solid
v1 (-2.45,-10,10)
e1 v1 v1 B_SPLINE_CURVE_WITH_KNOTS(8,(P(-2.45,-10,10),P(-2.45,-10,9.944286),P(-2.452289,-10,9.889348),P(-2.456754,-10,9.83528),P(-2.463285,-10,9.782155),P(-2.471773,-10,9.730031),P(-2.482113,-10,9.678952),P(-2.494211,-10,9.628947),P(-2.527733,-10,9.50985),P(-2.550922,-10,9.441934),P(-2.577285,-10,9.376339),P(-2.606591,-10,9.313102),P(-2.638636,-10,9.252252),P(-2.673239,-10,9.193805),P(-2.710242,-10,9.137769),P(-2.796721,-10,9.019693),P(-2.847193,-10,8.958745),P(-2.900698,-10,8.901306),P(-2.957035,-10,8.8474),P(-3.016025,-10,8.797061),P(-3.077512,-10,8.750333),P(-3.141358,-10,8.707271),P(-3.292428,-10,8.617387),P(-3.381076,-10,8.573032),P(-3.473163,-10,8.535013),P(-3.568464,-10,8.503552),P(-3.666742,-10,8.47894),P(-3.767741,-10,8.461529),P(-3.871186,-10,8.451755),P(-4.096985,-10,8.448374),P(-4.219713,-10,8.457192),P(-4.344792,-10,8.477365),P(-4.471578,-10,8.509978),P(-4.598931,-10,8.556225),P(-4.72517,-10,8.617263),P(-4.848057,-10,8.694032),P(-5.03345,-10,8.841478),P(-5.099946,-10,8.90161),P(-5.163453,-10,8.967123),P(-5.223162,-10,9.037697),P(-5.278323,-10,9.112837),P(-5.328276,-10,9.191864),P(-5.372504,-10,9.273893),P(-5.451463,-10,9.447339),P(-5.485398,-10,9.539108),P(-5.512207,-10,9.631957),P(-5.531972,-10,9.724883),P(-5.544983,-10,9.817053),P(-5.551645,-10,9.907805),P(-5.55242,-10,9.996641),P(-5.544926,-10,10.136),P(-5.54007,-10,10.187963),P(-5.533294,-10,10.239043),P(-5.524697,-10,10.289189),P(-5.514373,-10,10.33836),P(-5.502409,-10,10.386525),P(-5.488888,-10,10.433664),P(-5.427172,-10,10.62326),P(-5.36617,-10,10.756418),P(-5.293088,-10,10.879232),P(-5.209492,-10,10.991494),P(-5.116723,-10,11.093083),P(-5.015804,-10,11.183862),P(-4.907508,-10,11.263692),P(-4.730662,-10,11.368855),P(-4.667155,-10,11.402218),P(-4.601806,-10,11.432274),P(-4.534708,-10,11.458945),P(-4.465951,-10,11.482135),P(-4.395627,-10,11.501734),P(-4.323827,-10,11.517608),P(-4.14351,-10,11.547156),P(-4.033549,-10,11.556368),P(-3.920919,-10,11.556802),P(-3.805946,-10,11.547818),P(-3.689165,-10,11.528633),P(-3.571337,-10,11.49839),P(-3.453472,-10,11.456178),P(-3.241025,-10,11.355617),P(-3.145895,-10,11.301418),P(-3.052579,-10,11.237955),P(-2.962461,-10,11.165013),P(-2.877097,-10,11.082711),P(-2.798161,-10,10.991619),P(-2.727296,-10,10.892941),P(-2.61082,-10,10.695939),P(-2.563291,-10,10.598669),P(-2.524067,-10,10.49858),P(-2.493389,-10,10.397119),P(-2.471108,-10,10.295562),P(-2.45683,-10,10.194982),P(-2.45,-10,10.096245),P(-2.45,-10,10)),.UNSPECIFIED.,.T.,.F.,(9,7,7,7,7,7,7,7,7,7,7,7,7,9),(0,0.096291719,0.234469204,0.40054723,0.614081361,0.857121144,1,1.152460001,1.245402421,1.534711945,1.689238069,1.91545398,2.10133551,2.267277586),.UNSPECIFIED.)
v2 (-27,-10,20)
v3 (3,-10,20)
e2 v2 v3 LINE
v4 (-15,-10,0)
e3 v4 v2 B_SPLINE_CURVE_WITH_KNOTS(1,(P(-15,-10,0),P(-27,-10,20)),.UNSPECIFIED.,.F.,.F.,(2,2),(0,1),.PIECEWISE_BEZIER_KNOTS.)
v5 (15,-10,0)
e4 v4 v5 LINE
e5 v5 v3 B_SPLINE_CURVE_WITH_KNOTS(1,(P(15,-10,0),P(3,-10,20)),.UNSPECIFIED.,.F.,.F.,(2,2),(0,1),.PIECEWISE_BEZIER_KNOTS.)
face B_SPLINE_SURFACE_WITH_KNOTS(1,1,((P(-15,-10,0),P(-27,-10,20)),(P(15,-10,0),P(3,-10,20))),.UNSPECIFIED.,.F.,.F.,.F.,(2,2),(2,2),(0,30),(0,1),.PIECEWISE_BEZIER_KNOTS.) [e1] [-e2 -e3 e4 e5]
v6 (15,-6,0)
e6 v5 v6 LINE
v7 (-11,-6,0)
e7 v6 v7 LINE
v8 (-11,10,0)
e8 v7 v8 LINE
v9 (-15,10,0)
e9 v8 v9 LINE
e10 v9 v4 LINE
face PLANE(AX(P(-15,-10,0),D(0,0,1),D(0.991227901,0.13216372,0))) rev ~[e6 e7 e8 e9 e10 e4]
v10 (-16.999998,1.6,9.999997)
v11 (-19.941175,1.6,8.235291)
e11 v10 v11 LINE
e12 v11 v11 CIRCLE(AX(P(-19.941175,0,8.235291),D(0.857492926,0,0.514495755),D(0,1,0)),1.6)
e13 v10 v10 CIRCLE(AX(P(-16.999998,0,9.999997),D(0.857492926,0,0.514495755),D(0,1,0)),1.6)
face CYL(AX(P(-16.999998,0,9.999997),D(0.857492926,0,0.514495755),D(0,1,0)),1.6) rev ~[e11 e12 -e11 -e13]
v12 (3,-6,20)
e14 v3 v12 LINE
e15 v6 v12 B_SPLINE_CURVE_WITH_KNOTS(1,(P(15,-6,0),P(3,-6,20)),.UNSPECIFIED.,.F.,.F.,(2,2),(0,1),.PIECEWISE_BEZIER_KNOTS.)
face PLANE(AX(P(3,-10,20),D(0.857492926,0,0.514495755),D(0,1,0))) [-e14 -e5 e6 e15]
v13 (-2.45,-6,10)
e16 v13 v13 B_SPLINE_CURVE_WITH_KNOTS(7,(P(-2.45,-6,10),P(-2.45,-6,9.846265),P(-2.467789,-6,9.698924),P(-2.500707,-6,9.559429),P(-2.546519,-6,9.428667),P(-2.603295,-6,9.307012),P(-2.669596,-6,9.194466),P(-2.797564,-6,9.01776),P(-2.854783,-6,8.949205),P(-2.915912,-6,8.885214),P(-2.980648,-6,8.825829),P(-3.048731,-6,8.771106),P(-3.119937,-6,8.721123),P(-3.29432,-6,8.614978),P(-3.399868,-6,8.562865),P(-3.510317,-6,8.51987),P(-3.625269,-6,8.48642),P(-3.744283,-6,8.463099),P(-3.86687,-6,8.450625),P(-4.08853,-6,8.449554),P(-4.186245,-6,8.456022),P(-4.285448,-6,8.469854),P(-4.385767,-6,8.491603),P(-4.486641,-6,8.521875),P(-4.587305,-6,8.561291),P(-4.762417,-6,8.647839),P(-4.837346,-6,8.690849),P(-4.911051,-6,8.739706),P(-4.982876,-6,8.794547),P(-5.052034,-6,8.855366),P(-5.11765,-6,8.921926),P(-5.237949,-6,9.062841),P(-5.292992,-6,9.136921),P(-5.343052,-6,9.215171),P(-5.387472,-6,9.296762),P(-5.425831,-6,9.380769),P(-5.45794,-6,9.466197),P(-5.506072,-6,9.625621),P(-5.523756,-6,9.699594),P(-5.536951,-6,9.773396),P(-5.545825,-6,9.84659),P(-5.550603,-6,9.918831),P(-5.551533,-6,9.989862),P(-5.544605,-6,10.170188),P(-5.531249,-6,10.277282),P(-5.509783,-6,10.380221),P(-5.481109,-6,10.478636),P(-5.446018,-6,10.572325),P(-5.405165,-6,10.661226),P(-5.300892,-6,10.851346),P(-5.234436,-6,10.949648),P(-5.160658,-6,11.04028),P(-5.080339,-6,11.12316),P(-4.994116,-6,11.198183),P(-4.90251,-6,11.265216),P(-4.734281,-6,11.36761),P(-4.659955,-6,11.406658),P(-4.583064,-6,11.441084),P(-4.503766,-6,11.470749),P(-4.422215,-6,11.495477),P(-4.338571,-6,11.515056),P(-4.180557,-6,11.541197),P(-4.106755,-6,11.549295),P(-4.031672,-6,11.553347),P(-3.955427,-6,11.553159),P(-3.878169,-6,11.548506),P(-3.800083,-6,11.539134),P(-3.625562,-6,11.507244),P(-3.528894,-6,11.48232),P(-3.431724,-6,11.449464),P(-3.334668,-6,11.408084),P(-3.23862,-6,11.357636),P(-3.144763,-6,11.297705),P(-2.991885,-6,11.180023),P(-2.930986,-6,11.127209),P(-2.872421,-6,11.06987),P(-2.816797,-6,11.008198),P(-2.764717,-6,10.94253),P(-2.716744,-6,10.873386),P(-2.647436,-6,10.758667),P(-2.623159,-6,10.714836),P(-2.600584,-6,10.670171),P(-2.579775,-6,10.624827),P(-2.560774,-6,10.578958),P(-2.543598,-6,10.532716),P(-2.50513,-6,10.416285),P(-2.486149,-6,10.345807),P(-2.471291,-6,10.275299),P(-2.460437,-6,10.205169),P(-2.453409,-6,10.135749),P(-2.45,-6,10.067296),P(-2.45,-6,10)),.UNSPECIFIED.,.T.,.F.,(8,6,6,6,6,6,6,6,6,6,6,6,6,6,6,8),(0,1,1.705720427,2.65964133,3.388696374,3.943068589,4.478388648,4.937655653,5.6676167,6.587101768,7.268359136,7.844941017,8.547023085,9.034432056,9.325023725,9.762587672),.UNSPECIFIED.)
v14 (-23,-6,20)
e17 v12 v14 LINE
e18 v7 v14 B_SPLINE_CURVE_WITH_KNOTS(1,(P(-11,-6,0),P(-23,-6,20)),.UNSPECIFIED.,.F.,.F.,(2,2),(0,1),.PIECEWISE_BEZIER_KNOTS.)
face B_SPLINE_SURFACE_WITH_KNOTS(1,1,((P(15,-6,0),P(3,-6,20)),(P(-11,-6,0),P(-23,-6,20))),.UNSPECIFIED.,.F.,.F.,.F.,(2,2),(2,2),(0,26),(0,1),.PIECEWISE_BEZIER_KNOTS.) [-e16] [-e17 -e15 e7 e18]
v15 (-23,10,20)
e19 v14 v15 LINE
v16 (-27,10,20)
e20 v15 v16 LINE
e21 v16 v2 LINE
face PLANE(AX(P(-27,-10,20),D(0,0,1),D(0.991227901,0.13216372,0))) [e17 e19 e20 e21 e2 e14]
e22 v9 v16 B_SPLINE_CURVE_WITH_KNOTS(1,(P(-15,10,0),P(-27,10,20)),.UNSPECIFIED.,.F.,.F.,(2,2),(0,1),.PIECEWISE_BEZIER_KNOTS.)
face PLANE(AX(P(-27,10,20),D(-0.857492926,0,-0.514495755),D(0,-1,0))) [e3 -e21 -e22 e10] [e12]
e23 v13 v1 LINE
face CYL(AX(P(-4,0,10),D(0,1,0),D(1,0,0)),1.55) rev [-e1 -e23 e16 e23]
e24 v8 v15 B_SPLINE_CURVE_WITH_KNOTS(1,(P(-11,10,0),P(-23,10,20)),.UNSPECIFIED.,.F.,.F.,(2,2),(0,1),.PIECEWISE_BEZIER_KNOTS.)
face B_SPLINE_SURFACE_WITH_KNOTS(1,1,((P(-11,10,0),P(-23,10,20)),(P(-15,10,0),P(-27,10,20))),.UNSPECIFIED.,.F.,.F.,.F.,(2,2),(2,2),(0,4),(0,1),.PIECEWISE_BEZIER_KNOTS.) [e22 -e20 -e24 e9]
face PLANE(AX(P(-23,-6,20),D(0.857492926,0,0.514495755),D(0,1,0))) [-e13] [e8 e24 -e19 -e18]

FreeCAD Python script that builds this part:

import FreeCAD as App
import Part
import Sketcher

V = App.Vector
Q = App.Units.Quantity

doc = App.newDocument("Part")
body = doc.addObject("PartDesign::Body", "Body")

sketch1 = body.newObject("Sketcher::SketchObject", "Sketch")
sketch1.AttachmentSupport = (doc.getObject("XY_Plane"), [""])
sketch1.MapMode = "FlatFace"
sketch1.addGeometry(Part.LineSegment(V(-15, -10, 0), V(15, -10, 0)), False)
sketch1.addGeometry(Part.LineSegment(V(15, -10, 0), V(15, -6, 0)), False)
sketch1.addGeometry(Part.LineSegment(V(15, -6, 0), V(-11, -6, 0)), False)
sketch1.addGeometry(Part.LineSegment(V(-11, -6, 0), V(-11, 10, 0)), False)
sketch1.addGeometry(Part.LineSegment(V(-11, 10, 0), V(-15, 10, 0)), False)
sketch1.addGeometry(Part.LineSegment(V(-15, 10, 0), V(-15, -10, 0)), False)
sketch1.addConstraint(Sketcher.Constraint("Coincident", 0, 2, 1, 1))
sketch1.addConstraint(Sketcher.Constraint("Coincident", 1, 2, 2, 1))
sketch1.addConstraint(Sketcher.Constraint("Coincident", 2, 2, 3, 1))
sketch1.addConstraint(Sketcher.Constraint("Coincident", 3, 2, 4, 1))
sketch1.addConstraint(Sketcher.Constraint("Coincident", 4, 2, 5, 1))
sketch1.addConstraint(Sketcher.Constraint("Coincident", 5, 2, 0, 1))
sketch1.addConstraint(Sketcher.Constraint("Horizontal", 0))
sketch1.addConstraint(Sketcher.Constraint("Vertical", 1))
sketch1.addConstraint(Sketcher.Constraint("Horizontal", 2))
sketch1.addConstraint(Sketcher.Constraint("Vertical", 3))
sketch1.addConstraint(Sketcher.Constraint("Horizontal", 4))
sketch1.addConstraint(Sketcher.Constraint("Vertical", 5))
sketch1.addConstraint(Sketcher.Constraint("Symmetric", 0, 2, 4, 2, -1, 1))
sketch1.addConstraint(Sketcher.Constraint("Equal", 4, 1))
sketch1.addConstraint(Sketcher.Constraint("DistanceX", 0, 1, 0, 2, Q("30 mm")))
sketch1.addConstraint(Sketcher.Constraint("DistanceX", 2, 2, 2, 1, Q("26 mm")))
sketch1.addConstraint(Sketcher.Constraint("DistanceY", 3, 1, 3, 2, Q("16 mm")))

sketch2 = body.newObject("Sketcher::SketchObject", "Sketch001")
sketch2.AttachmentSupport = (doc.getObject("XY_Plane"), [""])
sketch2.MapMode = "FlatFace"
sketch2.AttachmentOffset = App.Placement(V(0, 0, 20), App.Rotation())
sketch2.addGeometry(Part.LineSegment(V(-27, -10, 0), V(3, -10, 0)), False)
sketch2.addGeometry(Part.LineSegment(V(3, -10, 0), V(3, -6, 0)), False)
sketch2.addGeometry(Part.LineSegment(V(3, -6, 0), V(-23, -6, 0)), False)
sketch2.addGeometry(Part.LineSegment(V(-23, -6, 0), V(-23, 10, 0)), False)
sketch2.addGeometry(Part.LineSegment(V(-23, 10, 0), V(-27, 10, 0)), False)
sketch2.addGeometry(Part.LineSegment(V(-27, 10, 0), V(-27, -10, 0)), False)
sketch2.addConstraint(Sketcher.Constraint("Coincident", 0, 2, 1, 1))
sketch2.addConstraint(Sketcher.Constraint("Coincident", 1, 2, 2, 1))
sketch2.addConstraint(Sketcher.Constraint("Coincident", 2, 2, 3, 1))
sketch2.addConstraint(Sketcher.Constraint("Coincident", 3, 2, 4, 1))
sketch2.addConstraint(Sketcher.Constraint("Coincident", 4, 2, 5, 1))
sketch2.addConstraint(Sketcher.Constraint("Coincident", 5, 2, 0, 1))
sketch2.addConstraint(Sketcher.Constraint("Horizontal", 0))
sketch2.addConstraint(Sketcher.Constraint("Vertical", 1))
sketch2.addConstraint(Sketcher.Constraint("Horizontal", 2))
sketch2.addConstraint(Sketcher.Constraint("Vertical", 3))
sketch2.addConstraint(Sketcher.Constraint("Horizontal", 4))
sketch2.addConstraint(Sketcher.Constraint("Vertical", 5))
sketch2.addConstraint(Sketcher.Constraint("Equal", 4, 1))
sketch2.addConstraint(Sketcher.Constraint("DistanceX", 0, 1, 0, 2, Q("30 mm")))
sketch2.addConstraint(Sketcher.Constraint("DistanceX", 2, 2, 2, 1, Q("26 mm")))
sketch2.addConstraint(Sketcher.Constraint("DistanceY", 3, 1, 3, 2, Q("16 mm")))
sketch2.addConstraint(Sketcher.Constraint("DistanceX", -1, 1, 0, 2, Q("3 mm")))
sketch2.addConstraint(Sketcher.Constraint("DistanceY", 0, 2, -1, 1, Q("10 mm")))

additiveloft = body.newObject("PartDesign::AdditiveLoft", "AdditiveLoft")
additiveloft.Profile = sketch1
additiveloft.Sections = [sketch2]

sketch3 = body.newObject("Sketcher::SketchObject", "Sketch002")
sketch3.AttachmentSupport = (doc.getObject("XZ_Plane"), [""])
sketch3.MapMode = "FlatFace"
sketch3.addGeometry(Part.Circle(V(-4, 10, 0), V(0, 0, 1), 1.6), False)
sketch3.addConstraint(Sketcher.Constraint("Diameter", 0, Q("3.1 mm")))
sketch3.addConstraint(Sketcher.Constraint("DistanceX", 0, 3, -1, 1, Q("4 mm")))
sketch3.addConstraint(Sketcher.Constraint("DistanceY", -1, 1, 0, 3, Q("10 mm")))
pocket1 = body.newObject("PartDesign::Pocket", "Pocket")
pocket1.Profile = sketch3
pocket1.Type = "ThroughAll"
pocket1.Midplane = True

sketch4 = body.newObject("Sketcher::SketchObject", "Sketch003")
sketch4.Placement = App.Placement(V(-8.088235, 0, -4.852941), App.Rotation(V(0, 1, 0), V(-0.514495755, 0, 0.857492926), V(0.857492926, 0, 0.514495755), "ZXY"))
sketch4.addGeometry(Part.Circle(V(0, 17.3, 0), V(0, 0, 1), 1.6), False)
sketch4.addConstraint(Sketcher.Constraint("PointOnObject", 0, 3, -2))
sketch4.addConstraint(Sketcher.Constraint("Diameter", 0, Q("3.2 mm")))
sketch4.addConstraint(Sketcher.Constraint("DistanceY", -1, 1, 0, 3, Q("17.321353 mm")))
pocket2 = body.newObject("PartDesign::Pocket", "Pocket001")
pocket2.Profile = sketch4
pocket2.Length = 5

doc.recompute()
